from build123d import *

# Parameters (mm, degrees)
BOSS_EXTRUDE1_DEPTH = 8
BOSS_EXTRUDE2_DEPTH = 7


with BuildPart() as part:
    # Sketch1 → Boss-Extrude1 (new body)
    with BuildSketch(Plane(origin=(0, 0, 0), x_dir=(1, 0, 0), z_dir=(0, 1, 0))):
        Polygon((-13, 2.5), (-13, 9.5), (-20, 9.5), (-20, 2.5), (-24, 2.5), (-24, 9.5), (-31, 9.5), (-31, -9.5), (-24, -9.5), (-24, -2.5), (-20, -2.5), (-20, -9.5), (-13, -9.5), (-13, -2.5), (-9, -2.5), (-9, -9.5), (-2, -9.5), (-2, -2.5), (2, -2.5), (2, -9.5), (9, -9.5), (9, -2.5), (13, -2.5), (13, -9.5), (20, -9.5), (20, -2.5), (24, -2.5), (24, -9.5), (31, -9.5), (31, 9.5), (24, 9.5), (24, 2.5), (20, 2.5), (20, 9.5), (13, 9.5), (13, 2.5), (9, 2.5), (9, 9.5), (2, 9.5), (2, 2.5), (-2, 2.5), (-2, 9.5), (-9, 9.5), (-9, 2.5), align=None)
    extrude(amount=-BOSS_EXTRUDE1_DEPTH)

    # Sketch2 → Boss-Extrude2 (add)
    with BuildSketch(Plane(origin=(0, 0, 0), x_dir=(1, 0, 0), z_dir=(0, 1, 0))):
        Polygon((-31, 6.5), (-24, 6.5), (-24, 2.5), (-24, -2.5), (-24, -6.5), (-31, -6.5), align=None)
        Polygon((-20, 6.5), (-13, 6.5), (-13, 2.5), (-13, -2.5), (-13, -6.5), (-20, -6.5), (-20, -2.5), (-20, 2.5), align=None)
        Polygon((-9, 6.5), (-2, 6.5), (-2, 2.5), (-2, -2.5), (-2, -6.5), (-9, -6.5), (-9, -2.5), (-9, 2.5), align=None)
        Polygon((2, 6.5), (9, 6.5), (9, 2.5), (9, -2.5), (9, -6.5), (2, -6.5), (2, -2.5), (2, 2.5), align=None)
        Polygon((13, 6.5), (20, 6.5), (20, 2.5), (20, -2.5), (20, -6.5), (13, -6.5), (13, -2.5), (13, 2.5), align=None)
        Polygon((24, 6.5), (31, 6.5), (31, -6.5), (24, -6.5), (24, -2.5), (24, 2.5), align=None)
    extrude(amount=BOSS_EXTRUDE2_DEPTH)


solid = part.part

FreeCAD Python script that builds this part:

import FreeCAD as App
import Part
import Sketcher

V = App.Vector
Q = App.Units.Quantity


def add_polygon(sketch, points):
    """Adds a closed chain of lines whose ends are joined by coincident constraints."""
    first, n = sketch.GeometryCount, len(points)
    for a, b in zip(points, points[1:] + points[:1]):
        sketch.addGeometry(Part.LineSegment(App.Vector(*a, 0), App.Vector(*b, 0)), False)
    for i in range(n):
        sketch.addConstraint(Sketcher.Constraint("Coincident", first + i, 2, first + (i + 1) % n, 1))

doc = App.newDocument("Part")
body = doc.addObject("PartDesign::Body", "Body")

sketch1 = body.newObject("Sketcher::SketchObject", "Sketch")
sketch1.AttachmentSupport = (doc.getObject("XZ_Plane"), [""])
sketch1.MapMode = "FlatFace"
add_polygon(sketch1, [(-13, -2.5), (-13, -9.5), (-20, -9.5), (-20, -2.5), (-24, -2.5), (-24, -9.5), (-31, -9.5), (-31, 9.5), (-24, 9.5), (-24, 2.5), (-20, 2.5), (-20, 9.5), (-13, 9.5), (-13, 2.5), (-9, 2.5), (-9, 9.5), (-2, 9.5), (-2, 2.5), (2, 2.5), (2, 9.5), (9, 9.5), (9, 2.5), (13, 2.5), (13, 9.5), (20, 9.5), (20, 2.5), (24, 2.5), (24, 9.5), (31, 9.5), (31, -9.5), (24, -9.5), (24, -2.5), (20, -2.5), (20, -9.5), (13, -9.5), (13, -2.5), (9, -2.5), (9, -9.5), (2, -9.5), (2, -2.5), (-2, -2.5), (-2, -9.5), (-9, -9.5), (-9, -2.5)])
sketch1.addConstraint(Sketcher.Constraint("Vertical", 0))
sketch1.addConstraint(Sketcher.Constraint("Horizontal", 1))
sketch1.addConstraint(Sketcher.Constraint("Vertical", 2))
sketch1.addConstraint(Sketcher.Constraint("Horizontal", 3))
sketch1.addConstraint(Sketcher.Constraint("Vertical", 4))
sketch1.addConstraint(Sketcher.Constraint("Horizontal", 5))
sketch1.addConstraint(Sketcher.Constraint("Vertical", 6))
sketch1.addConstraint(Sketcher.Constraint("Horizontal", 7))
sketch1.addConstraint(Sketcher.Constraint("Vertical", 8))
sketch1.addConstraint(Sketcher.Constraint("Horizontal", 9))
sketch1.addConstraint(Sketcher.Constraint("Vertical", 10))
sketch1.addConstraint(Sketcher.Constraint("Horizontal", 11))
sketch1.addConstraint(Sketcher.Constraint("Vertical", 12))
sketch1.addConstraint(Sketcher.Constraint("Horizontal", 13))
sketch1.addConstraint(Sketcher.Constraint("Vertical", 14))
sketch1.addConstraint(Sketcher.Constraint("Horizontal", 15))
sketch1.addConstraint(Sketcher.Constraint("Vertical", 16))
sketch1.addConstraint(Sketcher.Constraint("Horizontal", 17))
sketch1.addConstraint(Sketcher.Constraint("Vertical", 18))
sketch1.addConstraint(Sketcher.Constraint("Horizontal", 19))
sketch1.addConstraint(Sketcher.Constraint("Vertical", 20))
sketch1.addConstraint(Sketcher.Constraint("Horizontal", 21))
sketch1.addConstraint(Sketcher.Constraint("Vertical", 22))
sketch1.addConstraint(Sketcher.Constraint("Horizontal", 23))
sketch1.addConstraint(Sketcher.Constraint("Vertical", 24))
sketch1.addConstraint(Sketcher.Constraint("Horizontal", 25))
sketch1.addConstraint(Sketcher.Constraint("Vertical", 26))
sketch1.addConstraint(Sketcher.Constraint("Horizontal", 27))
sketch1.addConstraint(Sketcher.Constraint("Vertical", 28))
sketch1.addConstraint(Sketcher.Constraint("Horizontal", 29))
sketch1.addConstraint(Sketcher.Constraint("Vertical", 30))
sketch1.addConstraint(Sketcher.Constraint("Horizontal", 31))
sketch1.addConstraint(Sketcher.Constraint("Vertical", 32))
sketch1.addConstraint(Sketcher.Constraint("Horizontal", 33))
sketch1.addConstraint(Sketcher.Constraint("Vertical", 34))
sketch1.addConstraint(Sketcher.Constraint("Horizontal", 35))
sketch1.addConstraint(Sketcher.Constraint("Vertical", 36))
sketch1.addConstraint(Sketcher.Constraint("Horizontal", 37))
sketch1.addConstraint(Sketcher.Constraint("Vertical", 38))
sketch1.addConstraint(Sketcher.Constraint("Horizontal", 39))
sketch1.addConstraint(Sketcher.Constraint("Vertical", 40))
sketch1.addConstraint(Sketcher.Constraint("Horizontal", 41))
sketch1.addConstraint(Sketcher.Constraint("Vertical", 42))
sketch1.addConstraint(Sketcher.Constraint("Horizontal", 43))
sketch1.addConstraint(Sketcher.Constraint("Symmetric", 0, 2, 22, 2, -1, 1))
sketch1.addConstraint(Sketcher.Constraint("Symmetric", 2, 2, 24, 2, -1, 1))
sketch1.addConstraint(Sketcher.Constraint("Symmetric", 4, 2, 26, 2, -1, 1))
sketch1.addConstraint(Sketcher.Constraint("Symmetric", 6, 2, 28, 2, -1, 1))
sketch1.addConstraint(Sketcher.Constraint("Symmetric", 8, 2, 30, 2, -1, 1))
sketch1.addConstraint(Sketcher.Constraint("Symmetric", 10, 2, 32, 2, -1, 1))
sketch1.addConstraint(Sketcher.Constraint("Symmetric", 12, 2, 34, 2, -1, 1))
sketch1.addConstraint(Sketcher.Constraint("Symmetric", 14, 2, 36, 2, -1, 1))
sketch1.addConstraint(Sketcher.Constraint("Symmetric", 16, 2, 38, 2, -1, 1))
sketch1.addConstraint(Sketcher.Constraint("Symmetric", 18, 2, 40, 2, -1, 1))
sketch1.addConstraint(Sketcher.Constraint("Symmetric", 20, 2, 42, 2, -1, 1))
sketch1.addConstraint(Sketcher.Constraint("Symmetric", 15, 2, 18, 2, -2))
sketch1.addConstraint(Sketcher.Constraint("Symmetric", 13, 2, 20, 2, -2))
sketch1.addConstraint(Sketcher.Constraint("Symmetric", 11, 2, 22, 2, -2))
sketch1.addConstraint(Sketcher.Constraint("Symmetric", 9, 2, 24, 2, -2))
sketch1.addConstraint(Sketcher.Constraint("Symmetric", 7, 2, 26, 2, -2))
sketch1.addConstraint(Sketcher.Constraint("Horizontal", 1, 2, 4, 2))
sketch1.addConstraint(Sketcher.Constraint("Horizontal", 9, 2, 12, 2))
sketch1.addConstraint(Sketcher.Constraint("Horizontal", 11, 2, 14, 2))
sketch1.addConstraint(Sketcher.Constraint("Horizontal", 13, 2, 16, 2))
sketch1.addConstraint(Sketcher.Constraint("Equal", 1, 5))
sketch1.addConstraint(Sketcher.Constraint("Equal", 9, 13))
sketch1.addConstraint(Sketcher.Constraint("Equal", 11, 15))
sketch1.addConstraint(Sketcher.Constraint("Equal", 13, 17))
sketch1.addConstraint(Sketcher.Constraint("Equal", 41, 0))
sketch1.addConstraint(Sketcher.Constraint("DistanceX", 1, 2, 1, 1, Q("7 mm")))
sketch1.addConstraint(Sketcher.Constraint("DistanceX", 3, 2, 3, 1, Q("4 mm")))
sketch1.addConstraint(Sketcher.Constraint("DistanceY", 6, 1, 6, 2, Q("19 mm")))
pad1 = body.newObject("PartDesign::Pad", "Pad")
pad1.Profile = sketch1
pad1.Length = 8

sketch2 = body.newObject("Sketcher::SketchObject", "Sketch001")
sketch2.AttachmentSupport = (doc.getObject("XZ_Plane"), [""])
sketch2.MapMode = "FlatFace"
add_polygon(sketch2, [(-24, -6.5), (-31, -6.5), (-31, 6.5), (-24, 6.5)])
add_polygon(sketch2, [(-13, -6.5), (-20, -6.5), (-20, 6.5), (-13, 6.5)])
add_polygon(sketch2, [(-2, -6.5), (-9, -6.5), (-9, 6.5), (-2, 6.5)])
add_polygon(sketch2, [(9, -6.5), (2, -6.5), (2, 6.5), (9, 6.5)])
add_polygon(sketch2, [(20, -6.5), (13, -6.5), (13, 6.5), (20, 6.5)])
add_polygon(sketch2, [(31, -6.5), (24, -6.5), (24, 6.5), (31, 6.5)])
sketch2.addConstraint(Sketcher.Constraint("Horizontal", 0))
sketch2.addConstraint(Sketcher.Constraint("Vertical", 1))
sketch2.addConstraint(Sketcher.Constraint("Horizontal", 2))
sketch2.addConstraint(Sketcher.Constraint("Vertical", 3))
sketch2.addConstraint(Sketcher.Constraint("Horizontal", 4))
sketch2.addConstraint(Sketcher.Constraint("Vertical", 5))
sketch2.addConstraint(Sketcher.Constraint("Horizontal", 6))
sketch2.addConstraint(Sketcher.Constraint("Vertical", 7))
sketch2.addConstraint(Sketcher.Constraint("Horizontal", 8))
sketch2.addConstraint(Sketcher.Constraint("Vertical", 9))
sketch2.addConstraint(Sketcher.Constraint("Horizontal", 10))
sketch2.addConstraint(Sketcher.Constraint("Vertical", 11))
sketch2.addConstraint(Sketcher.Constraint("Horizontal", 12))
sketch2.addConstraint(Sketcher.Constraint("Vertical", 13))
sketch2.addConstraint(Sketcher.Constraint("Horizontal", 14))
sketch2.addConstraint(Sketcher.Constraint("Vertical", 15))
sketch2.addConstraint(Sketcher.Constraint("Horizontal", 16))
sketch2.addConstraint(Sketcher.Constraint("Vertical", 17))
sketch2.addConstraint(Sketcher.Constraint("Horizontal", 18))
sketch2.addConstraint(Sketcher.Constraint("Vertical", 19))
sketch2.addConstraint(Sketcher.Constraint("Horizontal", 20))
sketch2.addConstraint(Sketcher.Constraint("Vertical", 21))
sketch2.addConstraint(Sketcher.Constraint("Horizontal", 22))
sketch2.addConstraint(Sketcher.Constraint("Vertical", 23))
sketch2.addConstraint(Sketcher.Constraint("Symmetric", 10, 2, 12, 2, -1, 1))
sketch2.addConstraint(Sketcher.Constraint("Symmetric", 8, 2, 14, 2, -1, 1))
sketch2.addConstraint(Sketcher.Constraint("Symmetric", 6, 2, 16, 2, -1, 1))
sketch2.addConstraint(Sketcher.Constraint("Symmetric", 4, 2, 18, 2, -1, 1))
sketch2.addConstraint(Sketcher.Constraint("Symmetric", 2, 2, 20, 2, -1, 1))
sketch2.addConstraint(Sketcher.Constraint("Symmetric", 0, 2, 22, 2, -1, 1))
sketch2.addConstraint(Sketcher.Constraint("Horizontal", 3, 2, 4, 2))
sketch2.addConstraint(Sketcher.Constraint("Horizontal", 2, 2, 5, 2))
sketch2.addConstraint(Sketcher.Constraint("Horizontal", 7, 2, 8, 2))
sketch2.addConstraint(Sketcher.Constraint("Horizontal", 6, 2, 9, 2))
sketch2.addConstraint(Sketcher.Constraint("Horizontal", 11, 2, 12, 2))
sketch2.addConstraint(Sketcher.Constraint("Equal", 2, 4))
sketch2.addConstraint(Sketcher.Constraint("Equal", 6, 8))
sketch2.addConstraint(Sketcher.Constraint("DistanceX", 0, 2, 0, 1, Q("7 mm")))
sketch2.addConstraint(Sketcher.Constraint("DistanceY", 1, 1, 1, 2, Q("13 mm")))
sketch2.addConstraint(Sketcher.Constraint("DistanceX", 0, 2, -1, 1, Q("31 mm")))
sketch2.addConstraint(Sketcher.Constraint("DistanceX", 4, 2, -1, 1, Q("20 mm")))
sketch2.addConstraint(Sketcher.Constraint("DistanceX", 8, 2, -1, 1, Q("9 mm")))
pad2 = body.newObject("PartDesign::Pad", "Pad001")
pad2.Profile = sketch2
pad2.Length = 7
pad2.Reversed = True

doc.recompute()
